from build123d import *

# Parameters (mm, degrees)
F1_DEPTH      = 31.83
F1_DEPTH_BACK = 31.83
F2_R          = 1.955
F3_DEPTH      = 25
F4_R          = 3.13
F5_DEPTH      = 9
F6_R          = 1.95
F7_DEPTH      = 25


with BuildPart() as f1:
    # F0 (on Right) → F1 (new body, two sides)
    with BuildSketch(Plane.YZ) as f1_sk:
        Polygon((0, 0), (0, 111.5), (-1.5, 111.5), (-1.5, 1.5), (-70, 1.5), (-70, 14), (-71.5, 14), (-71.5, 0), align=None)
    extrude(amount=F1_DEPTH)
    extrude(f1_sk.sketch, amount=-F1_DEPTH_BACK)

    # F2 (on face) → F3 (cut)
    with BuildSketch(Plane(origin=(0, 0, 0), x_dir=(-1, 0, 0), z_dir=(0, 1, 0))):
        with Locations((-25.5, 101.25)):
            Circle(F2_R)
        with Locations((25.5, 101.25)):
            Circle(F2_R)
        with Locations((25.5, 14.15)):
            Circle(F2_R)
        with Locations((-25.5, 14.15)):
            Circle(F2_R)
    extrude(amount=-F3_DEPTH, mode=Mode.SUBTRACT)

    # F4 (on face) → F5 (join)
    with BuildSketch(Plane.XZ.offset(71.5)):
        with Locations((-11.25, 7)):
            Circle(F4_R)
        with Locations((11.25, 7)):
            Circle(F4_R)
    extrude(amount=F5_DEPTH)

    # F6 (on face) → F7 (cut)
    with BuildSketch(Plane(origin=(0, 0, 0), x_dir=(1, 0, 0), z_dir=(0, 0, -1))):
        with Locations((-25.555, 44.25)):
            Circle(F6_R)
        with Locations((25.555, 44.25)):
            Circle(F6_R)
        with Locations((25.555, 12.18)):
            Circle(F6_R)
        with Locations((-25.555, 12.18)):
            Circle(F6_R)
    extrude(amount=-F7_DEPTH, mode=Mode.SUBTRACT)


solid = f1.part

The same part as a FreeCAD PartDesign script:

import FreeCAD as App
import Part
import Sketcher


def add_polygon(sketch, points):
    """Adds a closed chain of lines whose ends are joined by coincident constraints."""
    first, n = sketch.GeometryCount, len(points)
    for a, b in zip(points, points[1:] + points[:1]):
        sketch.addGeometry(Part.LineSegment(App.Vector(*a, 0), App.Vector(*b, 0)), False)
    for i in range(n):
        sketch.addConstraint(Sketcher.Constraint("Coincident", first + i, 2, first + (i + 1) % n, 1))

doc = App.newDocument("Part")
body = doc.addObject("PartDesign::Body", "Body")

sketch1 = body.newObject("Sketcher::SketchObject", "Sketch")
sketch1.AttachmentSupport = (doc.getObject("YZ_Plane"), [""])
sketch1.MapMode = "FlatFace"
add_polygon(sketch1, [(0, 0), (0, 111.5), (-1.5, 111.5), (-1.5, 1.5), (-70, 1.5), (-70, 14), (-71.5, 14), (-71.5, 0)])
sketch1.addConstraint([
    Sketcher.Constraint("Vertical", 0),
    Sketcher.Constraint("Horizontal", 1),
    Sketcher.Constraint("Vertical", 2),
    Sketcher.Constraint("Horizontal", 3),
    Sketcher.Constraint("Vertical", 4),
    Sketcher.Constraint("Horizontal", 5),
    Sketcher.Constraint("Vertical", 6),
    Sketcher.Constraint("Horizontal", 7),
    Sketcher.Constraint("Coincident", 7, 2, -1, 1),
    Sketcher.Constraint("Equal", 1, 5),
    Sketcher.Constraint("DistanceY", 2, 2, 2, 1, 110.0),
    Sketcher.Constraint("DistanceY", 6, 2, 6, 1, 14.0),
    Sketcher.Constraint("DistanceX", 1, 2, 1, 1, 1.5),
    Sketcher.Constraint("DistanceX", 3, 2, 3, 1, 68.5),
    Sketcher.Constraint("DistanceY", 0, 1, 0, 2, 111.5),
])
pad1 = body.newObject("PartDesign::Pad", "Pad")
pad1.Profile = sketch1
pad1.Type = "TwoLengths"
pad1.Length = 31.83
pad1.Length2 = 31.83

sketch2 = body.newObject("Sketcher::SketchObject", "Sketch001")
sketch2.AttachmentSupport = (doc.getObject("XZ_Plane"), [""])
sketch2.MapMode = "FlatFace"
sketch2.addGeometry([
    Part.Circle(App.Vector(25.5, 101.2, 0), App.Vector(0, 0, 1), 2),
    Part.Circle(App.Vector(-25.5, 101.2, 0), App.Vector(0, 0, 1), 2),
    Part.Circle(App.Vector(-25.5, 14.2, 0), App.Vector(0, 0, 1), 2),
    Part.Circle(App.Vector(25.5, 14.2, 0), App.Vector(0, 0, 1), 2),
], False)
sketch2.addConstraint([
    Sketcher.Constraint("Equal", 0, 1),
    Sketcher.Constraint("Equal", 1, 2),
    Sketcher.Constraint("Equal", 2, 3),
    Sketcher.Constraint("Symmetric", 0, 3, 1, 3, -2),
    Sketcher.Constraint("Symmetric", 2, 3, 3, 3, -2),
    Sketcher.Constraint("Vertical", 1, 3, 2, 3),
    Sketcher.Constraint("Diameter", 0, 3.91),
    Sketcher.Constraint("DistanceX", 1, 3, 0, 3, 51.0),
    Sketcher.Constraint("DistanceY", 2, 3, 1, 3, 87.1),
    Sketcher.Constraint("DistanceY", -1, 1, 0, 3, 101.25),
])
pocket1 = body.newObject("PartDesign::Pocket", "Pocket")
pocket1.Profile = sketch2
pocket1.Length = 25
pocket1.Reversed = True

sketch3 = body.newObject("Sketcher::SketchObject", "Sketch002")
sketch3.AttachmentSupport = (doc.getObject("XZ_Plane"), [""])
sketch3.MapMode = "FlatFace"
sketch3.AttachmentOffset = App.Placement(App.Vector(0, 0, 71.5), App.Rotation())
sketch3.addGeometry([
    Part.Circle(App.Vector(-11.2, 7, 0), App.Vector(0, 0, 1), 3.1),
    Part.Circle(App.Vector(11.2, 7, 0), App.Vector(0, 0, 1), 3.1),
], False)
sketch3.addConstraint([
    Sketcher.Constraint("Equal", 0, 1),
    Sketcher.Constraint("Symmetric", 0, 3, 1, 3, -2),
    Sketcher.Constraint("Diameter", 0, 6.26),
    Sketcher.Constraint("DistanceY", -1, 1, 0, 3, 7.0),
    Sketcher.Constraint("DistanceX", 0, 3, 1, 3, 22.5),
])
pad2 = body.newObject("PartDesign::Pad", "Pad001")
pad2.Profile = sketch3
pad2.Length = 9

sketch4 = body.newObject("Sketcher::SketchObject", "Sketch003")
sketch4.AttachmentSupport = (doc.getObject("XY_Plane"), [""])
sketch4.MapMode = "FlatFace"
sketch4.addGeometry([
    Part.Circle(App.Vector(-25.6, -44.2, 0), App.Vector(0, 0, 1), 1.9),
    Part.Circle(App.Vector(25.6, -44.2, 0), App.Vector(0, 0, 1), 1.9),
    Part.Circle(App.Vector(25.6, -12.2, 0), App.Vector(0, 0, 1), 1.9),
    Part.Circle(App.Vector(-25.6, -12.2, 0), App.Vector(0, 0, 1), 1.9),
], False)
sketch4.addConstraint([
    Sketcher.Constraint("Equal", 0, 1),
    Sketcher.Constraint("Equal", 1, 2),
    Sketcher.Constraint("Equal", 2, 3),
    Sketcher.Constraint("Symmetric", 0, 3, 1, 3, -2),
    Sketcher.Constraint("Symmetric", 2, 3, 3, 3, -2),
    Sketcher.Constraint("Vertical", 1, 3, 2, 3),
    Sketcher.Constraint("Diameter", 0, 3.9),
    Sketcher.Constraint("DistanceY", 0, 3, -1, 1, 44.25),
    Sketcher.Constraint("DistanceY", 2, 3, -1, 1, 12.18),
    Sketcher.Constraint("DistanceX", 0, 3, 1, 3, 51.11),
])
pocket2 = body.newObject("PartDesign::Pocket", "Pocket001")
pocket2.Profile = sketch4
pocket2.Length = 25
pocket2.Reversed = True

doc.recompute()
